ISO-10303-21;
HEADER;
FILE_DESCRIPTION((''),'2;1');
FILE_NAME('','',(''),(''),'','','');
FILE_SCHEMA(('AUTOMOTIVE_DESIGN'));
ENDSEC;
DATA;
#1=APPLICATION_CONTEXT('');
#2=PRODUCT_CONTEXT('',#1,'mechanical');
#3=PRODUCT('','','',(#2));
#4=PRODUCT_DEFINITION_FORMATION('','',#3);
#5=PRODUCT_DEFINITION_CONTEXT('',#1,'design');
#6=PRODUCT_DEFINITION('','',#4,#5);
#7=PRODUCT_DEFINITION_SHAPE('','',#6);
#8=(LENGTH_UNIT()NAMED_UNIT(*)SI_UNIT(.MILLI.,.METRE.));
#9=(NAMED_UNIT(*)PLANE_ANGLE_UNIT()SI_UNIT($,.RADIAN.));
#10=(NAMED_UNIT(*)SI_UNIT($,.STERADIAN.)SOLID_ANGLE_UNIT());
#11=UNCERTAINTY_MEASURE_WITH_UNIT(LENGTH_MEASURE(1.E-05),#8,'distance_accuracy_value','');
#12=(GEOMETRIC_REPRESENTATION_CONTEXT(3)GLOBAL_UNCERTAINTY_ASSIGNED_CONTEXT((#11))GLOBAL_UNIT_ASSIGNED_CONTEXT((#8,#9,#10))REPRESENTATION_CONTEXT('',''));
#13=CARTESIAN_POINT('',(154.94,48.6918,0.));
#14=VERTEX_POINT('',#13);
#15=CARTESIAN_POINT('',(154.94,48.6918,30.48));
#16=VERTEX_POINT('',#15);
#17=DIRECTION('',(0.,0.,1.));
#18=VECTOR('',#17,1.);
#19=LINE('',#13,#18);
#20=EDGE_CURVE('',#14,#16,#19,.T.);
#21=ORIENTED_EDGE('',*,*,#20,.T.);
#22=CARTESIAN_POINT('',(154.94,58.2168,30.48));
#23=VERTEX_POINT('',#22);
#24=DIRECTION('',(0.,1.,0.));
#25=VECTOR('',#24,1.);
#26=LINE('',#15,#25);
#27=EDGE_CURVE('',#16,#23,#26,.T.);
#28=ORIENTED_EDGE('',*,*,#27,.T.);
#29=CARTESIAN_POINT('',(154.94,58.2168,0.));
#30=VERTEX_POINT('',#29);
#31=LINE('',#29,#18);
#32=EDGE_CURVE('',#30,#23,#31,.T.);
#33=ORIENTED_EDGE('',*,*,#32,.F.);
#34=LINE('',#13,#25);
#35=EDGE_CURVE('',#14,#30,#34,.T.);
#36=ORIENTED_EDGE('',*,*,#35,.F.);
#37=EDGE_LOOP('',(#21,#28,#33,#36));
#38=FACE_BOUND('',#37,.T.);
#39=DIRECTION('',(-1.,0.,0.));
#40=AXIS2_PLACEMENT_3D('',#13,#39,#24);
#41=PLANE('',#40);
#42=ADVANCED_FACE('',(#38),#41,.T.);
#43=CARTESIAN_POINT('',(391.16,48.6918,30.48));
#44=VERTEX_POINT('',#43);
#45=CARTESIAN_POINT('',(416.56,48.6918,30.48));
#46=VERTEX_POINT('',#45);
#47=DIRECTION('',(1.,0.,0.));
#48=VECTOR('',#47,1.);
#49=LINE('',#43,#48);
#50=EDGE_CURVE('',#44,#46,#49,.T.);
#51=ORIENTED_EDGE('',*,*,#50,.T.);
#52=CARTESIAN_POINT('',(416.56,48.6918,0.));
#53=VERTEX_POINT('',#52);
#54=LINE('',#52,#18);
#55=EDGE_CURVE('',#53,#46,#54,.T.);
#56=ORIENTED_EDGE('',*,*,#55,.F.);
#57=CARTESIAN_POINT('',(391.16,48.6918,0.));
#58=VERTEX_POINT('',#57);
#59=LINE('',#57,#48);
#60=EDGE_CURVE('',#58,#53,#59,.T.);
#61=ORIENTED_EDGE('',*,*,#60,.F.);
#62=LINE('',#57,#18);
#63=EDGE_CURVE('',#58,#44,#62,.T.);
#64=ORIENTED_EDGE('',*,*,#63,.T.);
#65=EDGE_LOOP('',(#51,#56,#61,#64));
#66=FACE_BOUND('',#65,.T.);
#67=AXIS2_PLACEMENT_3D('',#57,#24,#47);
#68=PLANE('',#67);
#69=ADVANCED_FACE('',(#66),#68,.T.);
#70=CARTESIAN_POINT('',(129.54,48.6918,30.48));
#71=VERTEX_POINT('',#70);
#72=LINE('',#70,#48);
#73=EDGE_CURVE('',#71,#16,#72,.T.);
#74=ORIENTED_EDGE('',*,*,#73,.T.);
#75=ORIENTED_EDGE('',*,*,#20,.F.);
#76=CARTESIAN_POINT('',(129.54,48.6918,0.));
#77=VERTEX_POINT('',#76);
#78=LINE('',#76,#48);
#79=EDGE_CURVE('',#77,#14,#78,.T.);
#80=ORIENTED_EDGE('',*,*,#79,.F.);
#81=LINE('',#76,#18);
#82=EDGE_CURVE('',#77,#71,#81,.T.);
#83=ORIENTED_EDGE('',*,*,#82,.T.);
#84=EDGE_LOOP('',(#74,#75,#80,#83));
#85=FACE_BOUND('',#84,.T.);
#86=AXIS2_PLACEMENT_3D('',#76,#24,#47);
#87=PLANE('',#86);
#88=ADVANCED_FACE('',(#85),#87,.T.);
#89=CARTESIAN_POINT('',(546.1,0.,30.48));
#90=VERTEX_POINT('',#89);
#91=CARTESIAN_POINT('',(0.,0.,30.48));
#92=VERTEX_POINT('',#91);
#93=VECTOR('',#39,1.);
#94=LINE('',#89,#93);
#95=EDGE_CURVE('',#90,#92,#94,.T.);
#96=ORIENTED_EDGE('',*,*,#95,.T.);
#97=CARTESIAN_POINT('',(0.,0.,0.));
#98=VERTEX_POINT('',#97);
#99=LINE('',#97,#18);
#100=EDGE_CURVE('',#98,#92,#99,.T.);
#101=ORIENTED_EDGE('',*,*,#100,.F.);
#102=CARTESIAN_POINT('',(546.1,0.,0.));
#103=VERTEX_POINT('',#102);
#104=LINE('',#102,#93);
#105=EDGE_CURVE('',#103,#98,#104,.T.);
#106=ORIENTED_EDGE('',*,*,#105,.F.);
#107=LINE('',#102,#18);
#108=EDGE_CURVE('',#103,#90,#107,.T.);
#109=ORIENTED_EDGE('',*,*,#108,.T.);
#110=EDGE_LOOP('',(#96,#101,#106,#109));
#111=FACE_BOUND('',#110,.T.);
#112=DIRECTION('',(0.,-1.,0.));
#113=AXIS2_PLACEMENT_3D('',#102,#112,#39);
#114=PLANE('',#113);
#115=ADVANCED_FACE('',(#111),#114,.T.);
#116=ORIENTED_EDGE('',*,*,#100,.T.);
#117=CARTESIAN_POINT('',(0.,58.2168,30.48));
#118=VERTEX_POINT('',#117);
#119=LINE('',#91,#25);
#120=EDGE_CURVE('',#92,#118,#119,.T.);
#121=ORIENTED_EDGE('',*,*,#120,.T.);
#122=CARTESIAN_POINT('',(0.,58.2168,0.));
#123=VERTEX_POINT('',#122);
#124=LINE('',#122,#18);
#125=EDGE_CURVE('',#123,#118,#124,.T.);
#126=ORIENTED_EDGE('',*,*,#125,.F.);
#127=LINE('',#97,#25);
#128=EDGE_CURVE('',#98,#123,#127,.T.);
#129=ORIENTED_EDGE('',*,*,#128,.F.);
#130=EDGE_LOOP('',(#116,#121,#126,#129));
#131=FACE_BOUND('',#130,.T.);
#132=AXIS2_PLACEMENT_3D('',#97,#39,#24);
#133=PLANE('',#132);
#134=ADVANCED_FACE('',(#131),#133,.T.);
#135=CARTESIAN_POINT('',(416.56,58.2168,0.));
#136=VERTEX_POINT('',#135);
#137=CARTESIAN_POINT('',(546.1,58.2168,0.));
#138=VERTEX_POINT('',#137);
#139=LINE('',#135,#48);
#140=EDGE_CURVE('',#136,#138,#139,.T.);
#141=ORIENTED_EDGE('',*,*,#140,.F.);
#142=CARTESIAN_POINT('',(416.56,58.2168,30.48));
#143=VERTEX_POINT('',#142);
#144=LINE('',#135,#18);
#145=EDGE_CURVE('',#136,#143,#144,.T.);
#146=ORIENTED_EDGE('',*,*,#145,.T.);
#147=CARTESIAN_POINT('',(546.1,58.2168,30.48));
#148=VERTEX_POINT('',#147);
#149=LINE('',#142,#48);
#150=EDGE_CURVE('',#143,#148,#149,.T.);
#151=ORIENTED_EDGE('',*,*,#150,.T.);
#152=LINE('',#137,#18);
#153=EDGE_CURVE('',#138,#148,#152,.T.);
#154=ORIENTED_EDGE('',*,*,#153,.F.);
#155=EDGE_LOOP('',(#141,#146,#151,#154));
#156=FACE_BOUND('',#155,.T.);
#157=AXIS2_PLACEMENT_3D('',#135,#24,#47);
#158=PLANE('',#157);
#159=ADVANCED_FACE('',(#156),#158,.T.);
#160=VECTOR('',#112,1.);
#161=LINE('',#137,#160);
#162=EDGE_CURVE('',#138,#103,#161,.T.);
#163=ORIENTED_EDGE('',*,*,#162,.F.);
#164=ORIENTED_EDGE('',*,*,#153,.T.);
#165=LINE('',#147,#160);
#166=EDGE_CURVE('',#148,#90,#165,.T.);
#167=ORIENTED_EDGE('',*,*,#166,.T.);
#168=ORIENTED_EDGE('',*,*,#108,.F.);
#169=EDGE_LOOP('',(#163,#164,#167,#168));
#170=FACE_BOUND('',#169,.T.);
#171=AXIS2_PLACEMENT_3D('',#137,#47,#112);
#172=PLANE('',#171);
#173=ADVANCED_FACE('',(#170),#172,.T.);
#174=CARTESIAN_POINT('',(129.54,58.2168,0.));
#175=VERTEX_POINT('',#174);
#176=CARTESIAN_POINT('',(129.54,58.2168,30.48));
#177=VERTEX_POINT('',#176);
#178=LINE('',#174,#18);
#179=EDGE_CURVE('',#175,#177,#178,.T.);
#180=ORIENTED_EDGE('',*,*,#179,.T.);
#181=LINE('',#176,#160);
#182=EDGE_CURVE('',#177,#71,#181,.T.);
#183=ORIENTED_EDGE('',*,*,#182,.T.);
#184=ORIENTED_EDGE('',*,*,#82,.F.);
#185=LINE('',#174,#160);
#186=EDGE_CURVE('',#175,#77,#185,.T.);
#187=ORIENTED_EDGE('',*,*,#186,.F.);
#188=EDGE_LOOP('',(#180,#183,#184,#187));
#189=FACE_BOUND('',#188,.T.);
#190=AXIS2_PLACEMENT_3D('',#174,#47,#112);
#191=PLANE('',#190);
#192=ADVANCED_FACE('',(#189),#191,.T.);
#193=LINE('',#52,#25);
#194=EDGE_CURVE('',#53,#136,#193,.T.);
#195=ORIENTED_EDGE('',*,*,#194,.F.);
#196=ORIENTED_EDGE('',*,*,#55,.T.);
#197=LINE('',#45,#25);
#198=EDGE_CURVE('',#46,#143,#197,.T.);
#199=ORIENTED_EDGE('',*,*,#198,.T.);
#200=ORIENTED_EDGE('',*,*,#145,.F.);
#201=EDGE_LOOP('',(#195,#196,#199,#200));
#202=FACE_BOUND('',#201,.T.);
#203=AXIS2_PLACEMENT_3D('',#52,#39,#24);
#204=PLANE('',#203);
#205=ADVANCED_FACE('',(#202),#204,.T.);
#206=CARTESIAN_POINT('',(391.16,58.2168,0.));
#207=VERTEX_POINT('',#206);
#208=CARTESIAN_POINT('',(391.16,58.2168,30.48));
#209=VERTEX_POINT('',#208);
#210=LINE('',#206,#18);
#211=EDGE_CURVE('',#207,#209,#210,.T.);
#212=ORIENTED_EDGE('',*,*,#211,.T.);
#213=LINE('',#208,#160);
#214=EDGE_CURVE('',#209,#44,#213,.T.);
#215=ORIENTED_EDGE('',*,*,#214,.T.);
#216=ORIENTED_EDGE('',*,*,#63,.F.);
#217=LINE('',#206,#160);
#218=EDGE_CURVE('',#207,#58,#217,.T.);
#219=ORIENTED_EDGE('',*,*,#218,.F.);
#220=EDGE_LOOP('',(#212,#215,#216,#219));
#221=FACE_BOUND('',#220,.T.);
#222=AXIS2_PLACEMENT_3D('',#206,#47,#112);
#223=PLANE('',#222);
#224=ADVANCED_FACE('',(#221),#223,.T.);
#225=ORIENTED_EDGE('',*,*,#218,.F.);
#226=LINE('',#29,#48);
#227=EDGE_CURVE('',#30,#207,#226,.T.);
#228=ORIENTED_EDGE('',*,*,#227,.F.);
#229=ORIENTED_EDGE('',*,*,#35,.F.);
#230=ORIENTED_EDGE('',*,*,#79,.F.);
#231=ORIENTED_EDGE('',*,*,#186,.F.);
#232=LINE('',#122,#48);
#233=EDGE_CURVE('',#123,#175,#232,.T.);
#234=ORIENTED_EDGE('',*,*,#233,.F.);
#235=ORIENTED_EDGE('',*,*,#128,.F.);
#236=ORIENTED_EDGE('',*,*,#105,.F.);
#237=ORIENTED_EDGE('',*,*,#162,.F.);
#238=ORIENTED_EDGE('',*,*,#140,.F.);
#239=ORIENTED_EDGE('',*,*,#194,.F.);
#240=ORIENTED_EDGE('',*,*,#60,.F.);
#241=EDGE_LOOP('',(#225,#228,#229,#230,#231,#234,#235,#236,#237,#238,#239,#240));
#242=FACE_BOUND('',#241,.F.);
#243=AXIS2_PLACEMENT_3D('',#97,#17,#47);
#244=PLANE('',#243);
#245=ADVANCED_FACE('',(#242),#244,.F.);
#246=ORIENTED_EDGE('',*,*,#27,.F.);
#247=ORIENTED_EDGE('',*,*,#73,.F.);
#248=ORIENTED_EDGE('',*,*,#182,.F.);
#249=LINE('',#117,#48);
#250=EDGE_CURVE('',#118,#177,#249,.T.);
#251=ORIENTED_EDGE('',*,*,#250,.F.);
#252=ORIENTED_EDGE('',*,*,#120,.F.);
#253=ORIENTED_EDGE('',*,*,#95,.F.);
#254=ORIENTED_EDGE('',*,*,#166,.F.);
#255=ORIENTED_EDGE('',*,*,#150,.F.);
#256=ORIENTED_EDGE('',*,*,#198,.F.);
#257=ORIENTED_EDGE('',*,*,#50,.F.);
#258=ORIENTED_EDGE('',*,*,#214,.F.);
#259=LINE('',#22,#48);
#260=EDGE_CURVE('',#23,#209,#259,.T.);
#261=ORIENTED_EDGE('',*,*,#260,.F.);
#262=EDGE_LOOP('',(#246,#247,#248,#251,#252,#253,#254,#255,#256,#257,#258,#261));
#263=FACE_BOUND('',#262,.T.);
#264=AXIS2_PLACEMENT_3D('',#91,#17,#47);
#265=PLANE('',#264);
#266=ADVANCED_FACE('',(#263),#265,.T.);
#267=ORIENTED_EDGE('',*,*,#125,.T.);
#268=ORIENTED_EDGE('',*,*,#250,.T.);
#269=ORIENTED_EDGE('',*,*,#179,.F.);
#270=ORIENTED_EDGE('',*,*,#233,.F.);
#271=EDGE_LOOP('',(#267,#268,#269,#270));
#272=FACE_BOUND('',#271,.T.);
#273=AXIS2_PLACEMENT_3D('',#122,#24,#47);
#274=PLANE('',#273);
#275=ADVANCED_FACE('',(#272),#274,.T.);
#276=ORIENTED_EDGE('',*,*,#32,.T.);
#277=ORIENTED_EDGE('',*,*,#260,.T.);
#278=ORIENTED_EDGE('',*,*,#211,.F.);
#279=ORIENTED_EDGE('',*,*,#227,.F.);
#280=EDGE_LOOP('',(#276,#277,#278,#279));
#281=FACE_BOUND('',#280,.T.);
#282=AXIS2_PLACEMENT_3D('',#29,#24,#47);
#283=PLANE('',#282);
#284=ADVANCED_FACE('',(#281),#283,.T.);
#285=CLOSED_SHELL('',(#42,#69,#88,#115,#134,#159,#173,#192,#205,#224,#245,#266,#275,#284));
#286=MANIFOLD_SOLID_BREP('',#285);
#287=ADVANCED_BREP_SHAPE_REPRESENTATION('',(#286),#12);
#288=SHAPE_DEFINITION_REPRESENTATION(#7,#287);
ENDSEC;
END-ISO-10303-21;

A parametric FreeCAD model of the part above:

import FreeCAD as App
import Part
import Sketcher
from FreeCAD import Vector
Q = App.Units.Quantity


def add_polygon(sketch, points):
    """Adds a closed chain of lines whose ends are joined by coincident constraints."""
    first, n = sketch.GeometryCount, len(points)
    for a, b in zip(points, points[1:] + points[:1]):
        sketch.addGeometry(Part.LineSegment(App.Vector(*a, 0), App.Vector(*b, 0)), False)
    for i in range(n):
        sketch.addConstraint(Sketcher.Constraint("Coincident", first + i, 2, first + (i + 1) % n, 1))

doc = App.newDocument("Part")
body = doc.addObject("PartDesign::Body", "Body")

# Sketch on XY plane
sketch1 = doc.addObject("Sketcher::SketchObject", "Sketch")
body.addObject(sketch1)
sketch1.AttachmentSupport = (doc.XY_Plane, [""])
sketch1.MapMode = "FlatFace"
add_polygon(sketch1, [(0, 58.2168), (0, 0), (546.1, 0), (546.1, 58.2168), (416.56, 58.2168), (416.56, 48.6918), (391.16, 48.6918), (391.16, 58.2168), (154.94, 58.2168), (154.94, 48.6918), (129.54, 48.6918), (129.54, 58.2168)])  # lines 0-11
sketch1.addConstraint([
    Sketcher.Constraint("Vertical", 0),
    Sketcher.Constraint("Horizontal", 1),
    Sketcher.Constraint("Vertical", 2),
    Sketcher.Constraint("Horizontal", 3),
    Sketcher.Constraint("Vertical", 4),
    Sketcher.Constraint("Horizontal", 5),
    Sketcher.Constraint("Vertical", 6),
    Sketcher.Constraint("Horizontal", 7),
    Sketcher.Constraint("Vertical", 8),
    Sketcher.Constraint("Horizontal", 9),
    Sketcher.Constraint("Vertical", 10),
    Sketcher.Constraint("Horizontal", 11),
    Sketcher.Constraint("Coincident", 0, 2, -1, 1),
    Sketcher.Constraint("Horizontal", 3, 2, 6, 2),
    Sketcher.Constraint("Horizontal", 5, 2, 8, 2),
    Sketcher.Constraint("Horizontal", 7, 2, 10, 2),
    Sketcher.Constraint("Equal", 5, 9),
    Sketcher.Constraint("Equal", 3, 11),
    Sketcher.Constraint("DistanceX", 5, 2, 5, 1, Q("1 in")),
    Sketcher.Constraint("DistanceX", 1, 1, 1, 2, Q("21.5 in")),
    Sketcher.Constraint("DistanceX", 3, 2, 3, 1, Q("5.1 in")),
    Sketcher.Constraint("DistanceY", 0, 2, 0, 1, Q("2.292 in")),
    Sketcher.Constraint("DistanceY", 4, 2, 4, 1, Q("0.375 in")),
])
pad1 = doc.addObject("PartDesign::Pad", "Pad")
body.addObject(pad1)
pad1.Profile = sketch1
pad1.Length = Q("1.2 in")

doc.recompute()
